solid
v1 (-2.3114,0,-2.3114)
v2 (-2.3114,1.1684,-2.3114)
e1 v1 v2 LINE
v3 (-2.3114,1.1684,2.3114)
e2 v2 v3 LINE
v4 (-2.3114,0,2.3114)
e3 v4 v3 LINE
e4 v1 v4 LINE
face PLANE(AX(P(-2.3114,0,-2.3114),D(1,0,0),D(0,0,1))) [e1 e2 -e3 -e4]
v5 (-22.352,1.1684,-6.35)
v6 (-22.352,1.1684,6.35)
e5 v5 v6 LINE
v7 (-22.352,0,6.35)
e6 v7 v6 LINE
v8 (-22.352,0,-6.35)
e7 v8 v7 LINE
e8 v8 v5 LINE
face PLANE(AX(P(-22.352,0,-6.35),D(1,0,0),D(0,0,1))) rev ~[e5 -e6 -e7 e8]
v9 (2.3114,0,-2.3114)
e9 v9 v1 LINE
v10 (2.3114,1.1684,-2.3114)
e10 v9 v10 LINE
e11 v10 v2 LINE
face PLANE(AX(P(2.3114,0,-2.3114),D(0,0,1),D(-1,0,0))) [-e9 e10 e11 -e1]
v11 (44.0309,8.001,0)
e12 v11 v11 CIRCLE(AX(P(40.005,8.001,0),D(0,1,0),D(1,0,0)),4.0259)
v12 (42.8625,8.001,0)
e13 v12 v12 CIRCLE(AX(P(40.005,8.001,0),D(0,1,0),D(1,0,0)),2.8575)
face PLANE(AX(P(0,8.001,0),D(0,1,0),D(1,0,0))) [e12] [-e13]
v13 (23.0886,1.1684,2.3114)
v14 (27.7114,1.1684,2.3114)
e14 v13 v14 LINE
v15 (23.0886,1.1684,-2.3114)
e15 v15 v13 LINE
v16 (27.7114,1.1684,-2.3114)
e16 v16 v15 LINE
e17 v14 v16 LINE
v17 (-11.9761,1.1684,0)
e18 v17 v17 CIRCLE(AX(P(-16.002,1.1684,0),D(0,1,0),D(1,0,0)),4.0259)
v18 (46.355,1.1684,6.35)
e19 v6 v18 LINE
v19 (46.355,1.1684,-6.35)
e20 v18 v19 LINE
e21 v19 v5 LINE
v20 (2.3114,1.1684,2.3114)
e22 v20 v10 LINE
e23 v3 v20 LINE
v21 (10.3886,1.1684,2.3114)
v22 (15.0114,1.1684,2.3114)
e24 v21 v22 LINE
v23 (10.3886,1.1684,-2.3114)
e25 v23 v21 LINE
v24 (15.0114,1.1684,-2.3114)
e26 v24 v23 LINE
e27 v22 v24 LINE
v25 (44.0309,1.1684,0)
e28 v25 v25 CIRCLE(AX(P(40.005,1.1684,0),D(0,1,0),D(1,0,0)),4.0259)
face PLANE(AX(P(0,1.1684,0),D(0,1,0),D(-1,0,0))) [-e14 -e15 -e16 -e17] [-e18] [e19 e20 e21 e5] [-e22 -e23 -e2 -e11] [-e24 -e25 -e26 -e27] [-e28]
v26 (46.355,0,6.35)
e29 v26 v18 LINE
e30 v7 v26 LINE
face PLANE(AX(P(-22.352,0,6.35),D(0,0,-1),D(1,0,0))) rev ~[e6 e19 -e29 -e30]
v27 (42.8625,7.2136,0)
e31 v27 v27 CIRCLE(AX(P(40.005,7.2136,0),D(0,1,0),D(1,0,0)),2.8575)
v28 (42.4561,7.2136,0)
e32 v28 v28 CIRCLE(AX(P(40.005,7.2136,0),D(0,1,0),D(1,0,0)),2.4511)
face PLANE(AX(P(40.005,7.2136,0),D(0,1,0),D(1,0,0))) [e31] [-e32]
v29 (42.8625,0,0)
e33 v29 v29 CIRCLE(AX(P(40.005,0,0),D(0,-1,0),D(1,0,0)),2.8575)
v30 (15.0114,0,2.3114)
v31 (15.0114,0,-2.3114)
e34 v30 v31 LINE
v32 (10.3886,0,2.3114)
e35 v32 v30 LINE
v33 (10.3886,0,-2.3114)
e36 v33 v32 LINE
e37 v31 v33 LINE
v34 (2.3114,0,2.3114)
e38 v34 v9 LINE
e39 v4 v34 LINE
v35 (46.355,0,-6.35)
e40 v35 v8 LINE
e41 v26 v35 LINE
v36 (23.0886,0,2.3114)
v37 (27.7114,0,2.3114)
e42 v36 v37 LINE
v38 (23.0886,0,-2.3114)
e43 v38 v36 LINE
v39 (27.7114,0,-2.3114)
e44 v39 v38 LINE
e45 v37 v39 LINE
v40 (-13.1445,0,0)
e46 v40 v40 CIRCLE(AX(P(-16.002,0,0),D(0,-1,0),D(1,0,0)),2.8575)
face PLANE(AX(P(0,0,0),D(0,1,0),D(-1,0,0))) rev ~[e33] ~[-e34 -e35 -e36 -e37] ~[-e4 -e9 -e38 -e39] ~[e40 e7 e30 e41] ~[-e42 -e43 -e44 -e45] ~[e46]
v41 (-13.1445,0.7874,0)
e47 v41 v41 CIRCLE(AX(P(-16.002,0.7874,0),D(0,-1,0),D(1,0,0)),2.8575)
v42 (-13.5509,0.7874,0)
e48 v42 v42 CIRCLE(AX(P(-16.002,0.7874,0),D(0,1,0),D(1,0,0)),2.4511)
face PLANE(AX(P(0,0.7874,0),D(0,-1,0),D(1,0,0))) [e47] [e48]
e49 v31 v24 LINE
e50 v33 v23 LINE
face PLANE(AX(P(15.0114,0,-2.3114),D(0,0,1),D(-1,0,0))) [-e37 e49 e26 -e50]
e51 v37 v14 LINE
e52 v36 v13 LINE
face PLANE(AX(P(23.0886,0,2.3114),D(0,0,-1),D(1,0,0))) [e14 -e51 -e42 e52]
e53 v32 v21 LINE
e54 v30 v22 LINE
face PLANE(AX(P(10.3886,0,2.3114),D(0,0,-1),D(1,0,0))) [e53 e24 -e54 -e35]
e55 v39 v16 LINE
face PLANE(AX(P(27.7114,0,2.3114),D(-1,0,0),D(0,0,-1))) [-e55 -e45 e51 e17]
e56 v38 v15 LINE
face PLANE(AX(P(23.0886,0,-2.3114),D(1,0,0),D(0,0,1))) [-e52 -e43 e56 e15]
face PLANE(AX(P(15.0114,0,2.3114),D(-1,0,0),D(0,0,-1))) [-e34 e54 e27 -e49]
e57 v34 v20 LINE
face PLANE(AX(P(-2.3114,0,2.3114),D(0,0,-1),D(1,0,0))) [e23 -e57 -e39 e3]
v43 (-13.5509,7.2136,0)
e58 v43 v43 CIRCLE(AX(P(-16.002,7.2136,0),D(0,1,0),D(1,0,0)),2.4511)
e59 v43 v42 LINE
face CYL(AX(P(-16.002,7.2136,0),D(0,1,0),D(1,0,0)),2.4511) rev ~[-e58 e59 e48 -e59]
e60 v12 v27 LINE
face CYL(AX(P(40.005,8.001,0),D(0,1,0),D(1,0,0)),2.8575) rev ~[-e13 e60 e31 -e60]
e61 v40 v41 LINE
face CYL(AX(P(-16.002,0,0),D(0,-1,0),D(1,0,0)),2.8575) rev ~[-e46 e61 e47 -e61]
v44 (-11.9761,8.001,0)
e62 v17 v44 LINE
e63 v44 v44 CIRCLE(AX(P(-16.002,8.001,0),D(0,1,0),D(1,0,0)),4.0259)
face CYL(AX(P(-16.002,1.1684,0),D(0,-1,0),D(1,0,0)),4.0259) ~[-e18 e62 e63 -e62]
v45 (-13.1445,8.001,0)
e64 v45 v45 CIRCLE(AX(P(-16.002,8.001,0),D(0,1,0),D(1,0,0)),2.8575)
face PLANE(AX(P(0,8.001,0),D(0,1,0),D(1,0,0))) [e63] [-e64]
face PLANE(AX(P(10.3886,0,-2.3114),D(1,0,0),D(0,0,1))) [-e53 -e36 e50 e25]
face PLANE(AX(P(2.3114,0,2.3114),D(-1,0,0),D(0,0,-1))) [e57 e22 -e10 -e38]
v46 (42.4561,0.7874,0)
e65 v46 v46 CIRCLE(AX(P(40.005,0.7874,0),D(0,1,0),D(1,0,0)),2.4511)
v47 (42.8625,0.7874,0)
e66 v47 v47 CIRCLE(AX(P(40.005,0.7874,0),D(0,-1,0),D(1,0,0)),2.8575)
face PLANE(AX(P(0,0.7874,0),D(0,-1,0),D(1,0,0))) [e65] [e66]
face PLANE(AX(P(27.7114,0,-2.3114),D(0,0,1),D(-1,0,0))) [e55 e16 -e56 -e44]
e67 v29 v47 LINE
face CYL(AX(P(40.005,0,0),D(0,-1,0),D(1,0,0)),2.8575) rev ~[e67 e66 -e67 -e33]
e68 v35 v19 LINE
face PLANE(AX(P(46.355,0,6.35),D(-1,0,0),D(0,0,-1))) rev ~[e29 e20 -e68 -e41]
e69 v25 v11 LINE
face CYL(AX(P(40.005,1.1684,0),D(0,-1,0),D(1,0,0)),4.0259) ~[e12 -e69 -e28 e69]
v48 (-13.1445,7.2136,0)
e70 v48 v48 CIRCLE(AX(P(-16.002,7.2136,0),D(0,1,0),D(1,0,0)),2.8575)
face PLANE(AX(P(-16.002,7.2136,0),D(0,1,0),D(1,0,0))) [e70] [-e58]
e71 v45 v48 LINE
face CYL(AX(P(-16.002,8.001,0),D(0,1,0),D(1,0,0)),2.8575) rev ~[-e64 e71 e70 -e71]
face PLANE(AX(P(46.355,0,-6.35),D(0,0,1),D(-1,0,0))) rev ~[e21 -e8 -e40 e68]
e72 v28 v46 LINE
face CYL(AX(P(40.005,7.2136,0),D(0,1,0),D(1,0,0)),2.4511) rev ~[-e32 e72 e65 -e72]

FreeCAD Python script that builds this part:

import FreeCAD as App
import Part
import Sketcher
from FreeCAD import Vector
Q = App.Units.Quantity

doc = App.newDocument("Part")
params = doc.addObject("Spreadsheet::Sheet", "Params")
for row, (alias, value) in enumerate([
    ("sketch1_height", "0.5 in"),
    ("sketch1_width", "2.705 in"),
    ("sketch1_width2", "0.182 in"),
    ("pad1_length", "0.046 in"),
    ("sketch2_diameter", "0.317 in"),
    ("pad2_length", "0.269 in"),
    ("sketch3_diameter", "0.225 in"),
    ("pocket1_length", "0.031 in"),
    ("sketch4_diameter", "0.225 in"),
    ("pocket2_length", "0.031 in"),
    ("sketch5_diameter", "0.193 in"),
    ("sketch6_diameter", "0.317 in"),
    ("pad3_length", "0.269 in"),
    ("sketch7_diameter", "0.225 in"),
    ("pocket4_length", "0.031 in"),
    ("sketch8_diameter", "0.225 in"),
    ("pocket5_length", "0.031 in"),
    ("sketch9_diameter", "0.193 in"),
], start=1):
    params.set(f"A{row}", alias)
    params.set(f"B{row}", "=" + value)
    params.setAlias(f"B{row}", alias)

body = doc.addObject("PartDesign::Body", "Body")

# Sketch on XZ plane
sketch1 = body.newObject("Sketcher::SketchObject", "Sketch")
sketch1.AttachmentSupport = (doc.getObject("XZ_Plane"), [""])
sketch1.MapMode = "FlatFace"
sketch1.addGeometry(Part.LineSegment(Vector(-22.4, -6.3, 0), Vector(-22.4, 6.3, 0)), False)
sketch1.addGeometry(Part.LineSegment(Vector(-22.4, 6.3, 0), Vector(46.4, 6.3, 0)), False)
sketch1.addGeometry(Part.LineSegment(Vector(46.4, 6.3, 0), Vector(46.4, -6.3, 0)), False)
sketch1.addGeometry(Part.LineSegment(Vector(46.4, -6.3, 0), Vector(-22.4, -6.3, 0)), False)
sketch1.addGeometry(Part.LineSegment(Vector(27.7, 2.3, 0), Vector(23.1, 2.3, 0)), False)
sketch1.addGeometry(Part.LineSegment(Vector(23.1, 2.3, 0), Vector(23.1, -2.3, 0)), False)
sketch1.addGeometry(Part.LineSegment(Vector(23.1, -2.3, 0), Vector(27.7, -2.3, 0)), False)
sketch1.addGeometry(Part.LineSegment(Vector(27.7, -2.3, 0), Vector(27.7, 2.3, 0)), False)
sketch1.addGeometry(Part.LineSegment(Vector(15, 2.3, 0), Vector(10.4, 2.3, 0)), False)
sketch1.addGeometry(Part.LineSegment(Vector(10.4, 2.3, 0), Vector(10.4, -2.3, 0)), False)
sketch1.addGeometry(Part.LineSegment(Vector(10.4, -2.3, 0), Vector(15, -2.3, 0)), False)
sketch1.addGeometry(Part.LineSegment(Vector(15, -2.3, 0), Vector(15, 2.3, 0)), False)
sketch1.addGeometry(Part.LineSegment(Vector(-2.3, -2.3, 0), Vector(2.3, -2.3, 0)), False)
sketch1.addGeometry(Part.LineSegment(Vector(2.3, -2.3, 0), Vector(2.3, 2.3, 0)), False)
sketch1.addGeometry(Part.LineSegment(Vector(2.3, 2.3, 0), Vector(-2.3, 2.3, 0)), False)
sketch1.addGeometry(Part.LineSegment(Vector(-2.3, 2.3, 0), Vector(-2.3, -2.3, 0)), False)
sketch1.addConstraint(Sketcher.Constraint("Coincident", 0, 2, 1, 1))
sketch1.addConstraint(Sketcher.Constraint("Coincident", 1, 2, 2, 1))
sketch1.addConstraint(Sketcher.Constraint("Coincident", 2, 2, 3, 1))
sketch1.addConstraint(Sketcher.Constraint("Coincident", 3, 2, 0, 1))
sketch1.addConstraint(Sketcher.Constraint("Coincident", 4, 2, 5, 1))
sketch1.addConstraint(Sketcher.Constraint("Coincident", 5, 2, 6, 1))
sketch1.addConstraint(Sketcher.Constraint("Coincident", 6, 2, 7, 1))
sketch1.addConstraint(Sketcher.Constraint("Coincident", 7, 2, 4, 1))
sketch1.addConstraint(Sketcher.Constraint("Coincident", 8, 2, 9, 1))
sketch1.addConstraint(Sketcher.Constraint("Coincident", 9, 2, 10, 1))
sketch1.addConstraint(Sketcher.Constraint("Coincident", 10, 2, 11, 1))
sketch1.addConstraint(Sketcher.Constraint("Coincident", 11, 2, 8, 1))
sketch1.addConstraint(Sketcher.Constraint("Coincident", 12, 2, 13, 1))
sketch1.addConstraint(Sketcher.Constraint("Coincident", 13, 2, 14, 1))
sketch1.addConstraint(Sketcher.Constraint("Coincident", 14, 2, 15, 1))
sketch1.addConstraint(Sketcher.Constraint("Coincident", 15, 2, 12, 1))
sketch1.addConstraint(Sketcher.Constraint("Vertical", 0))
sketch1.addConstraint(Sketcher.Constraint("Horizontal", 1))
sketch1.addConstraint(Sketcher.Constraint("Vertical", 2))
sketch1.addConstraint(Sketcher.Constraint("Horizontal", 3))
sketch1.addConstraint(Sketcher.Constraint("Horizontal", 4))
sketch1.addConstraint(Sketcher.Constraint("Vertical", 5))
sketch1.addConstraint(Sketcher.Constraint("Horizontal", 6))
sketch1.addConstraint(Sketcher.Constraint("Vertical", 7))
sketch1.addConstraint(Sketcher.Constraint("Horizontal", 8))
sketch1.addConstraint(Sketcher.Constraint("Vertical", 9))
sketch1.addConstraint(Sketcher.Constraint("Horizontal", 10))
sketch1.addConstraint(Sketcher.Constraint("Vertical", 11))
sketch1.addConstraint(Sketcher.Constraint("Horizontal", 12))
sketch1.addConstraint(Sketcher.Constraint("Vertical", 13))
sketch1.addConstraint(Sketcher.Constraint("Horizontal", 14))
sketch1.addConstraint(Sketcher.Constraint("Vertical", 15))
sketch1.addConstraint(Sketcher.Constraint("Symmetric", 12, 2, 14, 2, -1, 1))
sketch1.addConstraint(Sketcher.Constraint("Horizontal", 7, 2, 8, 2))
sketch1.addConstraint(Sketcher.Constraint("Horizontal", 6, 2, 9, 2))
sketch1.addConstraint(Sketcher.Constraint("Horizontal", 10, 2, 12, 2))
sketch1.addConstraint(Sketcher.Constraint("Horizontal", 11, 2, 13, 2))
sketch1.addConstraint(Sketcher.Constraint("Equal", 6, 8))
sketch1.addConstraint(Sketcher.Constraint("Equal", 10, 12))
sketch1.addConstraint(Sketcher.Constraint("Equal", 14, 5))
sketch1.addConstraint(Sketcher.Constraint("DistanceY", 0, 1, 0, 2, Q("0.5 in")))
sketch1.addConstraint(Sketcher.Constraint("DistanceX", 8, 2, 4, 2, Q("0.5 in")))
sketch1.addConstraint(Sketcher.Constraint("DistanceX", 12, 2, 10, 2, Q("0.5 in")))
sketch1.addConstraint(Sketcher.Constraint("DistanceX", 1, 1, 1, 2, Q("2.705 in")))
sketch1.addConstraint(Sketcher.Constraint("DistanceX", 4, 2, 4, 1, Q("0.182 in")))
sketch1.addConstraint(Sketcher.Constraint("DistanceX", 0, 2, -1, 1, Q("0.88 in")))
sketch1.addConstraint(Sketcher.Constraint("DistanceY", -1, 1, 0, 2, Q("0.25 in")))
sketch1.setExpression("Constraints[40]", "Params.sketch1_height")
sketch1.setExpression("Constraints[43]", "Params.sketch1_width")
sketch1.setExpression("Constraints[44]", "Params.sketch1_width2")
pad1 = body.newObject("PartDesign::Pad", "Pad")
pad1.Profile = sketch1
pad1.setExpression("Length", "Params.pad1_length")
pad1.Reversed = True

# Sketch on XZ plane
sketch2 = body.newObject("Sketcher::SketchObject", "Sketch001")
sketch2.AttachmentSupport = (doc.getObject("XZ_Plane"), [""])
sketch2.MapMode = "FlatFace"
sketch2.AttachmentOffset = App.Placement(Vector(0, 0, -0.046 * 25.4), App.Rotation())
sketch2.addGeometry(Part.Circle(Vector(-16, 0, 0), Vector(0, 0, 1), 4), False)
sketch2.addConstraint(Sketcher.Constraint("PointOnObject", 0, 3, -1))
sketch2.addConstraint(Sketcher.Constraint("Diameter", 0, Q("0.317 in")))
sketch2.addConstraint(Sketcher.Constraint("DistanceX", 0, 3, -1, 1, Q("0.63 in")))
sketch2.setExpression("Constraints[1]", "Params.sketch2_diameter")
pad2 = body.newObject("PartDesign::Pad", "Pad001")
pad2.Profile = sketch2
pad2.setExpression("Length", "Params.pad2_length")
pad2.Reversed = True

# Sketch on XZ plane
sketch3 = body.newObject("Sketcher::SketchObject", "Sketch002")
sketch3.AttachmentSupport = (doc.getObject("XZ_Plane"), [""])
sketch3.MapMode = "FlatFace"
sketch3.AttachmentOffset = App.Placement(Vector(0, 0, -0.315 * 25.4), App.Rotation())
sketch3.addGeometry(Part.Circle(Vector(-16, 0, 0), Vector(0, 0, 1), 2.9), False)
sketch3.addConstraint(Sketcher.Constraint("PointOnObject", 0, 3, -1))
sketch3.addConstraint(Sketcher.Constraint("Diameter", 0, Q("0.225 in")))
sketch3.addConstraint(Sketcher.Constraint("DistanceX", 0, 3, -1, 1, Q("0.63 in")))
sketch3.setExpression("Constraints[1]", "Params.sketch3_diameter")
pocket1 = body.newObject("PartDesign::Pocket", "Pocket")
pocket1.Profile = sketch3
pocket1.setExpression("Length", "Params.pocket1_length")
pocket1.Reversed = True

# Sketch on XZ plane
sketch4 = body.newObject("Sketcher::SketchObject", "Sketch003")
sketch4.AttachmentSupport = (doc.getObject("XZ_Plane"), [""])
sketch4.MapMode = "FlatFace"
sketch4.addGeometry(Part.Circle(Vector(-16, 0, 0), Vector(0, 0, 1), 2.9), False)
sketch4.addConstraint(Sketcher.Constraint("PointOnObject", 0, 3, -1))
sketch4.addConstraint(Sketcher.Constraint("Diameter", 0, Q("0.225 in")))
sketch4.addConstraint(Sketcher.Constraint("DistanceX", 0, 3, -1, 1, Q("0.63 in")))
sketch4.setExpression("Constraints[1]", "Params.sketch4_diameter")
pocket2 = body.newObject("PartDesign::Pocket", "Pocket001")
pocket2.Profile = sketch4
pocket2.setExpression("Length", "Params.pocket2_length")

# Sketch on XZ plane
sketch5 = body.newObject("Sketcher::SketchObject", "Sketch004")
sketch5.AttachmentSupport = (doc.getObject("XZ_Plane"), [""])
sketch5.MapMode = "FlatFace"
sketch5.AttachmentOffset = App.Placement(Vector(0, 0, -0.284 * 25.4), App.Rotation())
sketch5.addGeometry(Part.Circle(Vector(-16, 0, 0), Vector(0, 0, 1), 2.5), False)
sketch5.addConstraint(Sketcher.Constraint("PointOnObject", 0, 3, -1))
sketch5.addConstraint(Sketcher.Constraint("Diameter", 0, Q("0.193 in")))
sketch5.addConstraint(Sketcher.Constraint("DistanceX", 0, 3, -1, 1, Q("0.63 in")))
sketch5.setExpression("Constraints[1]", "Params.sketch5_diameter")
pocket3 = body.newObject("PartDesign::Pocket", "Pocket002")
pocket3.Profile = sketch5
pocket3.Type = "ThroughAll"
pocket3.Reversed = True

# Sketch on XZ plane
sketch6 = body.newObject("Sketcher::SketchObject", "Sketch005")
sketch6.AttachmentSupport = (doc.getObject("XZ_Plane"), [""])
sketch6.MapMode = "FlatFace"
sketch6.AttachmentOffset = App.Placement(Vector(0, 0, -0.046 * 25.4), App.Rotation())
sketch6.addGeometry(Part.Circle(Vector(40, 0, 0), Vector(0, 0, 1), 4), False)
sketch6.addConstraint(Sketcher.Constraint("PointOnObject", 0, 3, -1))
sketch6.addConstraint(Sketcher.Constraint("Diameter", 0, Q("0.317 in")))
sketch6.addConstraint(Sketcher.Constraint("DistanceX", -1, 1, 0, 3, Q("1.575 in")))
sketch6.setExpression("Constraints[1]", "Params.sketch6_diameter")
pad3 = body.newObject("PartDesign::Pad", "Pad002")
pad3.Profile = sketch6
pad3.setExpression("Length", "Params.pad3_length")
pad3.Reversed = True

# Sketch on XZ plane
sketch7 = body.newObject("Sketcher::SketchObject", "Sketch006")
sketch7.AttachmentSupport = (doc.getObject("XZ_Plane"), [""])
sketch7.MapMode = "FlatFace"
sketch7.AttachmentOffset = App.Placement(Vector(0, 0, -0.315 * 25.4), App.Rotation())
sketch7.addGeometry(Part.Circle(Vector(40, 0, 0), Vector(0, 0, 1), 2.9), False)
sketch7.addConstraint(Sketcher.Constraint("PointOnObject", 0, 3, -1))
sketch7.addConstraint(Sketcher.Constraint("Diameter", 0, Q("0.225 in")))
sketch7.addConstraint(Sketcher.Constraint("DistanceX", -1, 1, 0, 3, Q("1.575 in")))
sketch7.setExpression("Constraints[1]", "Params.sketch7_diameter")
pocket4 = body.newObject("PartDesign::Pocket", "Pocket003")
pocket4.Profile = sketch7
pocket4.setExpression("Length", "Params.pocket4_length")
pocket4.Reversed = True

# Sketch on XZ plane
sketch8 = body.newObject("Sketcher::SketchObject", "Sketch007")
sketch8.AttachmentSupport = (doc.getObject("XZ_Plane"), [""])
sketch8.MapMode = "FlatFace"
sketch8.addGeometry(Part.Circle(Vector(40, 0, 0), Vector(0, 0, 1), 2.9), False)
sketch8.addConstraint(Sketcher.Constraint("PointOnObject", 0, 3, -1))
sketch8.addConstraint(Sketcher.Constraint("Diameter", 0, Q("0.225 in")))
sketch8.addConstraint(Sketcher.Constraint("DistanceX", -1, 1, 0, 3, Q("1.575 in")))
sketch8.setExpression("Constraints[1]", "Params.sketch8_diameter")
pocket5 = body.newObject("PartDesign::Pocket", "Pocket004")
pocket5.Profile = sketch8
pocket5.setExpression("Length", "Params.pocket5_length")

# Sketch on XZ plane
sketch9 = body.newObject("Sketcher::SketchObject", "Sketch008")
sketch9.AttachmentSupport = (doc.getObject("XZ_Plane"), [""])
sketch9.MapMode = "FlatFace"
sketch9.AttachmentOffset = App.Placement(Vector(0, 0, -0.284 * 25.4), App.Rotation())
sketch9.addGeometry(Part.Circle(Vector(40, 0, 0), Vector(0, 0, 1), 2.5), False)
sketch9.addConstraint(Sketcher.Constraint("PointOnObject", 0, 3, -1))
sketch9.addConstraint(Sketcher.Constraint("Diameter", 0, Q("0.193 in")))
sketch9.addConstraint(Sketcher.Constraint("DistanceX", -1, 1, 0, 3, Q("1.575 in")))
sketch9.setExpression("Constraints[1]", "Params.sketch9_diameter")
pocket6 = body.newObject("PartDesign::Pocket", "Pocket005")
pocket6.Profile = sketch9
pocket6.Type = "ThroughAll"
pocket6.Reversed = True

doc.recompute()
